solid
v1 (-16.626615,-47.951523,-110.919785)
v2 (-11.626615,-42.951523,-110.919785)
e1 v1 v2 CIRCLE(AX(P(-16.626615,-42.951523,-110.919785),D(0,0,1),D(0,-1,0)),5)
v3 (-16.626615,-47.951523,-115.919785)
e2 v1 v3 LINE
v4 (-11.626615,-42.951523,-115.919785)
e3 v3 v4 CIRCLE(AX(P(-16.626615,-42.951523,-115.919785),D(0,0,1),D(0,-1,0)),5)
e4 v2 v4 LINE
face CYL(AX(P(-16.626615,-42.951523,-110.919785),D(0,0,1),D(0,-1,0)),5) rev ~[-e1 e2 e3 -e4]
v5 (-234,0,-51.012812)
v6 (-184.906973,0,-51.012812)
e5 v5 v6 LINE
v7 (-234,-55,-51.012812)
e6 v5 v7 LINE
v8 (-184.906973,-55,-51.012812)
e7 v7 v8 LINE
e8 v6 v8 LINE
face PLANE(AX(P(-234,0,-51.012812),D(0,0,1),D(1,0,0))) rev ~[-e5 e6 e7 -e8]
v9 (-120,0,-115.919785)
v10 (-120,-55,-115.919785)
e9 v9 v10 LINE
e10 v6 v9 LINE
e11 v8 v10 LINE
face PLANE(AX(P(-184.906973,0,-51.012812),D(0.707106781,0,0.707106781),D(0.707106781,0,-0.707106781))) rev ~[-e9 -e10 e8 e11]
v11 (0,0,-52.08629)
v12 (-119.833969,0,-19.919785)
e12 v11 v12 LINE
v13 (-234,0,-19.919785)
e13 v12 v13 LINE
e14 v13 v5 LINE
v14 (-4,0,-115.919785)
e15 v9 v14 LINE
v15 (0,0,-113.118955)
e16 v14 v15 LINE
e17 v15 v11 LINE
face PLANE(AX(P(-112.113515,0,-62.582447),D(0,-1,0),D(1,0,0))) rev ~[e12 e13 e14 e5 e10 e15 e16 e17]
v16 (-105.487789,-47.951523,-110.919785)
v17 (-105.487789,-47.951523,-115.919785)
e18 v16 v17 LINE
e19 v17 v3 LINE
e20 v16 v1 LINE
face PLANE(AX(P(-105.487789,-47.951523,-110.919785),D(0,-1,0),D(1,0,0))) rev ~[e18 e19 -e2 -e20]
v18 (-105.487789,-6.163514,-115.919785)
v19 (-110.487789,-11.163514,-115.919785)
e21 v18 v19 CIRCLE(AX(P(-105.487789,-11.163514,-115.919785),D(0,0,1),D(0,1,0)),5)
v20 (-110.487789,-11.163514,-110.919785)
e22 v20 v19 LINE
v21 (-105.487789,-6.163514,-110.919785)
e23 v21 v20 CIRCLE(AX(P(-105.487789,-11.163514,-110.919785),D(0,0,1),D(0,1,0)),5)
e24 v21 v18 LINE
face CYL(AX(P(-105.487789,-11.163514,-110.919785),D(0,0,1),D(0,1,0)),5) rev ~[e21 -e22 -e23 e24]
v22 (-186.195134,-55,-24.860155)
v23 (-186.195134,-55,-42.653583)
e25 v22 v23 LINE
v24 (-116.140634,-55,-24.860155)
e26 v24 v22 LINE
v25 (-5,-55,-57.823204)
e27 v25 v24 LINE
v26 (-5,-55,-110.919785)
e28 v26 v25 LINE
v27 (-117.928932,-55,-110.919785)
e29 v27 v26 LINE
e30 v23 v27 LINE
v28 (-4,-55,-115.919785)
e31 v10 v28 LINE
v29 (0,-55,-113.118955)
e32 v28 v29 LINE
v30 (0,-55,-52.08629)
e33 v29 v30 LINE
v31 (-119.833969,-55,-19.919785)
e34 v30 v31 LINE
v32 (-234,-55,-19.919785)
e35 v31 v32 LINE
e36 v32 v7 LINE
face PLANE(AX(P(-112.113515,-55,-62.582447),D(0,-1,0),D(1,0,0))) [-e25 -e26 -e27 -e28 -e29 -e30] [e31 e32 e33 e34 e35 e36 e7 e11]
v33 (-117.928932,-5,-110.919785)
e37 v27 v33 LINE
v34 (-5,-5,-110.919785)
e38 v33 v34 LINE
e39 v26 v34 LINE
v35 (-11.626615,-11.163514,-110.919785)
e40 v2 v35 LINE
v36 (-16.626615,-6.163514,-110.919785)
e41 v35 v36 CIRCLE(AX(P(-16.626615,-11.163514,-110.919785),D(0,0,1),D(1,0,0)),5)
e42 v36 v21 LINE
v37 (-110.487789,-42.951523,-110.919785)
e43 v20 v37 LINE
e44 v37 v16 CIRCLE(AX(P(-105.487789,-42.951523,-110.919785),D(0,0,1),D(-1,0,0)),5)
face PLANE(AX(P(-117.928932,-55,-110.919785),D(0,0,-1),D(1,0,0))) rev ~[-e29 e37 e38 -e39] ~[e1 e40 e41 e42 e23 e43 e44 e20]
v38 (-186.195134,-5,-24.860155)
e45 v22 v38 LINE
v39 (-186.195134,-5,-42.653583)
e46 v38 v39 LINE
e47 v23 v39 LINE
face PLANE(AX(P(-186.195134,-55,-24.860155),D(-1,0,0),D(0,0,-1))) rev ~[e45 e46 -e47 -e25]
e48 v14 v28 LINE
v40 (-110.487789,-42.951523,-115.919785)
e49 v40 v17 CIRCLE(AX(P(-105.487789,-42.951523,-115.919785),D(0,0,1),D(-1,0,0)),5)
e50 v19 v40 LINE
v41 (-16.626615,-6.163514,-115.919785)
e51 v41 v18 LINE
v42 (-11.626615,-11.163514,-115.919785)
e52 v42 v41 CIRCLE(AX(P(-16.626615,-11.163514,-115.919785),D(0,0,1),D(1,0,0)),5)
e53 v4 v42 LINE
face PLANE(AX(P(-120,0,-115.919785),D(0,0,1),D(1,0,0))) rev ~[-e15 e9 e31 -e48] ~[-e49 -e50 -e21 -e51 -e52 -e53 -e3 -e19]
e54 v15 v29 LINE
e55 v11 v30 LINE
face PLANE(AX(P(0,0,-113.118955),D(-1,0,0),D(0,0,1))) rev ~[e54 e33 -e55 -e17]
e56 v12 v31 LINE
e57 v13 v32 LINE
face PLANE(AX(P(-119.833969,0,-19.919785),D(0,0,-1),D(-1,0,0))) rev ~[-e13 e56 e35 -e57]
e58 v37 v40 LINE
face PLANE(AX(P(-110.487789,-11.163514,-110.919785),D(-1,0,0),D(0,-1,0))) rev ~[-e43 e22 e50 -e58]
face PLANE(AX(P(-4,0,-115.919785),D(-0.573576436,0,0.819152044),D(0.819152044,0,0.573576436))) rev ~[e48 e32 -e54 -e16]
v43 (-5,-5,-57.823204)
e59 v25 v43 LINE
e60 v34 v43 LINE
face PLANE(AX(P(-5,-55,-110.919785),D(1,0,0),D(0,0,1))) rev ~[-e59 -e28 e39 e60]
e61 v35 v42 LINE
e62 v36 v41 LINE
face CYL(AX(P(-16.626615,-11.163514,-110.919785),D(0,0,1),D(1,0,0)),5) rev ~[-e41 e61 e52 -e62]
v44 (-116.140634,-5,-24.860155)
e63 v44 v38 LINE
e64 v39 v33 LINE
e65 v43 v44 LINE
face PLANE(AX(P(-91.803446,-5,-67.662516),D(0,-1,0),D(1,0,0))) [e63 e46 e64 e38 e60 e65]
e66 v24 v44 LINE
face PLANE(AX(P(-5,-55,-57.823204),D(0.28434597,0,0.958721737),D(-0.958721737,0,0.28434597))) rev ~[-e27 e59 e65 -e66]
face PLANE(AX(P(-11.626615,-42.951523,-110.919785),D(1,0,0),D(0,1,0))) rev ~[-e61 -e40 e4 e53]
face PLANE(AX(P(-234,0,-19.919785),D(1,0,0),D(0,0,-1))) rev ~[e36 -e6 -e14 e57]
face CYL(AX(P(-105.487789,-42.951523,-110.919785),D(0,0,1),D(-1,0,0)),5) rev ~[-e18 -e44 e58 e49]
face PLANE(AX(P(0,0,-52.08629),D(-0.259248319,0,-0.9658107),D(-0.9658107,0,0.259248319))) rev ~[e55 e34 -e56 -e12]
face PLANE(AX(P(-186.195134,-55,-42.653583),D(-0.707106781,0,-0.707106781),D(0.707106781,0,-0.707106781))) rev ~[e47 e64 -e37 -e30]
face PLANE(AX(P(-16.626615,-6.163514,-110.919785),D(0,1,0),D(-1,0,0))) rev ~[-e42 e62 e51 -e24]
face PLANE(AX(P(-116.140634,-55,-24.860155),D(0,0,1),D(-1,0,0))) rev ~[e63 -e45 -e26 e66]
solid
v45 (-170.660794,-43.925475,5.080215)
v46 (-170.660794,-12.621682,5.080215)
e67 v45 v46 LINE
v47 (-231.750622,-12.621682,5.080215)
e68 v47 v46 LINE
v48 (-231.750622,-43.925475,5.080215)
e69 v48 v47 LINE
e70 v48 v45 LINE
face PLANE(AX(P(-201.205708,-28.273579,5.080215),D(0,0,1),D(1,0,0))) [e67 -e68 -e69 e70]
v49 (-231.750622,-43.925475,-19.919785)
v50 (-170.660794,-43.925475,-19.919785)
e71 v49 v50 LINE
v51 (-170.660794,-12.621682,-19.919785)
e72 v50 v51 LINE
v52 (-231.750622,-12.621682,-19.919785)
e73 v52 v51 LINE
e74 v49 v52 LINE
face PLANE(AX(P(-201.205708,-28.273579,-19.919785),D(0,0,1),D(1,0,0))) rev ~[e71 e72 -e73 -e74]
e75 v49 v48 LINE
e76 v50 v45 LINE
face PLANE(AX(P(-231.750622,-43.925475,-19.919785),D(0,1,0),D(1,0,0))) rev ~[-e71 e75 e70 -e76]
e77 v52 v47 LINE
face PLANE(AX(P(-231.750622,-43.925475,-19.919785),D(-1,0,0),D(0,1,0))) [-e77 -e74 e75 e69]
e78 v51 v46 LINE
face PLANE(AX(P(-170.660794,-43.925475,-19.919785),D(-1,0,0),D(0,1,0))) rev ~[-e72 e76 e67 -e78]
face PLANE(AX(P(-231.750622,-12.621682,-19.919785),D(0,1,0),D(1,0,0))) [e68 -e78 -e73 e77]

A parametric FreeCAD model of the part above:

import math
import FreeCAD as App
import Part
import Sketcher
Q = App.Units.Quantity


def add_polygon(sketch, points):
    """Adds a closed chain of lines whose ends are joined by coincident constraints."""
    first, n = sketch.GeometryCount, len(points)
    for a, b in zip(points, points[1:] + points[:1]):
        sketch.addGeometry(Part.LineSegment(App.Vector(*a, 0), App.Vector(*b, 0)), False)
    for i in range(n):
        sketch.addConstraint(Sketcher.Constraint("Coincident", first + i, 2, first + (i + 1) % n, 1))

doc = App.newDocument("Part")
body = doc.addObject("PartDesign::Body", "Body")

# Sketch on XZ plane
sketch1 = body.newObject("Sketcher::SketchObject", "Sketch")
sketch1.AttachmentSupport = (doc.getObject("XZ_Plane"), [""])
sketch1.MapMode = "FlatFace"
add_polygon(sketch1, [(0, -113.118955), (0, -52.08629), (-119.833969, -19.919785), (-234, -19.919785), (-234, -51.012812), (-184.906973, -51.012812), (-120, -115.919785), (-4, -115.919785)])  # lines 0-7
sketch1.addConstraint([
    Sketcher.Constraint("Vertical", 0),
    Sketcher.Constraint("Horizontal", 2),
    Sketcher.Constraint("Vertical", 3),
    Sketcher.Constraint("Horizontal", 4),
    Sketcher.Constraint("Horizontal", 6),
    Sketcher.Constraint("PointOnObject", 0, 2, -2),
    Sketcher.Constraint("DistanceX", 6, 1, 6, 2, Q("116 mm")),
    Sketcher.Constraint("Angle", 5, Q("-45 deg")),
    Sketcher.Constraint("Angle", 7, Q("35 deg")),
    Sketcher.Constraint("DistanceX", 2, 2, -1, 1, Q("234 mm")),
    Sketcher.Constraint("DistanceX", 5, 2, -1, 1, Q("120 mm")),
    Sketcher.Constraint("DistanceY", 5, 2, 1, 2, Q("96 mm")),
    Sketcher.Constraint("DistanceX", 2, 2, 2, 1, Q("114.166031 mm")),
    Sketcher.Constraint("Distance", 1, Q("124.076042 mm")),
    Sketcher.Constraint("Distance", 5, Q("91.792322 mm")),
    Sketcher.Constraint("DistanceY", 0, 2, -1, 1, Q("52.08629 mm")),
])
pad1 = body.newObject("PartDesign::Pad", "Pad")
pad1.Profile = sketch1
pad1.Length = 55

# Sketch on XZ plane
sketch2 = body.newObject("Sketcher::SketchObject", "Sketch001")
sketch2.AttachmentSupport = (doc.getObject("XZ_Plane"), [""])
sketch2.MapMode = "FlatFace"
sketch2.AttachmentOffset = App.Placement(App.Vector(0, 0, 55), App.Rotation())
add_polygon(sketch2, [(-116.140634, -24.860155), (-186.195134, -24.860155), (-186.195134, -42.653583), (-117.928932, -110.919785), (-5, -110.919785), (-5, -57.823204)])  # lines 0-5
sketch2.addConstraint([
    Sketcher.Constraint("Horizontal", 0),
    Sketcher.Constraint("Vertical", 1),
    Sketcher.Constraint("Horizontal", 3),
    Sketcher.Constraint("Vertical", 4),
    Sketcher.Constraint("Angle", 2, Q("-45 deg")),
    Sketcher.Constraint("DistanceX", 3, 2, -1, 1, Q("5 mm")),
    Sketcher.Constraint("DistanceX", 0, 2, 0, 1, Q("70.0545 mm")),
    Sketcher.Constraint("DistanceY", 4, 1, 4, 2, Q("53.096581 mm")),
    Sketcher.Constraint("DistanceX", 1, 2, 2, 2, Q("68.266202 mm")),
    Sketcher.Constraint("Distance", 5, Q("115.925852 mm")),
    Sketcher.Constraint("DistanceX", 3, 1, 3, 2, Q("112.928932 mm")),
    Sketcher.Constraint("DistanceY", 0, 2, -1, 1, Q("24.860155 mm")),
])
pocket1 = body.newObject("PartDesign::Pocket", "Pocket")
pocket1.Profile = sketch2
pocket1.Type = "TwoLengths"
pocket1.Length = 50
pocket1.Length2 = 50

# Sketch on XY plane
sketch3 = body.newObject("Sketcher::SketchObject", "Sketch002")
sketch3.AttachmentSupport = (doc.getObject("XY_Plane"), [""])
sketch3.MapMode = "FlatFace"
sketch3.AttachmentOffset = App.Placement(App.Vector(0, 0, -110.919785), App.Rotation())
sketch3.addGeometry([
    Part.LineSegment(App.Vector(-16.626615, -6.163514, 0), App.Vector(-105.487789, -6.163514, 0)),  # 0
    Part.ArcOfCircle(Part.Circle(App.Vector(-105.487789, -11.163514, 0), App.Vector(0, 0, 1), 5), math.radians(90), math.radians(180)),  # 1
    Part.LineSegment(App.Vector(-110.487789, -11.163514, 0), App.Vector(-110.487789, -42.951523, 0)),  # 2
    Part.ArcOfCircle(Part.Circle(App.Vector(-105.487789, -42.951523, 0), App.Vector(0, 0, 1), 5), math.radians(180), math.radians(270)),  # 3
    Part.LineSegment(App.Vector(-105.487789, -47.951523, 0), App.Vector(-16.626615, -47.951523, 0)),  # 4
    Part.ArcOfCircle(Part.Circle(App.Vector(-16.626615, -42.951523, 0), App.Vector(0, 0, 1), 5), math.radians(-90), math.radians(0)),  # 5
    Part.LineSegment(App.Vector(-11.626615, -42.951523, 0), App.Vector(-11.626615, -11.163514, 0)),  # 6
    Part.ArcOfCircle(Part.Circle(App.Vector(-16.626615, -11.163514, 0), App.Vector(0, 0, 1), 5), math.radians(0), math.radians(90)),  # 7
], False)
sketch3.addConstraint([
    Sketcher.Constraint("Tangent", 0, 2, 1, 1),
    Sketcher.Constraint("Tangent", 1, 2, 2, 1),
    Sketcher.Constraint("Tangent", 2, 2, 3, 1),
    Sketcher.Constraint("Tangent", 3, 2, 4, 1),
    Sketcher.Constraint("Tangent", 4, 2, 5, 1),
    Sketcher.Constraint("Tangent", 5, 2, 6, 1),
    Sketcher.Constraint("Tangent", 6, 2, 7, 1),
    Sketcher.Constraint("Tangent", 7, 2, 0, 1),
    Sketcher.Constraint("Horizontal", 0),
    Sketcher.Constraint("Vertical", 2),
    Sketcher.Constraint("Horizontal", 4),
    Sketcher.Constraint("Vertical", 6),
    Sketcher.Constraint("Equal", 1, 3),
    Sketcher.Constraint("Equal", 3, 5),
    Sketcher.Constraint("Equal", 5, 7),
    Sketcher.Constraint("Radius", 1, Q("5 mm")),
    Sketcher.Constraint("DistanceY", 2, 2, 2, 1, Q("31.788009 mm")),
    Sketcher.Constraint("DistanceX", 0, 2, 0, 1, Q("88.861174 mm")),
    Sketcher.Constraint("DistanceX", 1, 3, -1, 1, Q("105.487789 mm")),
    Sketcher.Constraint("DistanceY", 1, 3, -1, 1, Q("11.163514 mm")),
])
pocket2 = body.newObject("PartDesign::Pocket", "Pocket001")
pocket2.Profile = sketch3
pocket2.Length = 25
body2 = doc.addObject("PartDesign::Body", "Body001")

# Sketch on XY plane
sketch4 = body2.newObject("Sketcher::SketchObject", "Sketch003")
sketch4.AttachmentSupport = (doc.getObject("XY_Plane001"), [""])
sketch4.MapMode = "FlatFace"
sketch4.AttachmentOffset = App.Placement(App.Vector(0, 0, -19.919785), App.Rotation())
add_polygon(sketch4, [(-231.750622, -12.621682), (-231.750622, -43.925475), (-170.660794, -43.925475), (-170.660794, -12.621682)])  # lines 0-3
sketch4.addConstraint([
    Sketcher.Constraint("Vertical", 0),
    Sketcher.Constraint("Horizontal", 1),
    Sketcher.Constraint("Vertical", 2),
    Sketcher.Constraint("Horizontal", 3),
    Sketcher.Constraint("DistanceX", 1, 1, 1, 2, Q("61.089829 mm")),
    Sketcher.Constraint("DistanceY", 0, 2, 0, 1, Q("31.303793 mm")),
    Sketcher.Constraint("DistanceX", 0, 2, -1, 1, Q("231.750622 mm")),
    Sketcher.Constraint("DistanceY", 0, 2, -1, 1, Q("43.925475 mm")),
])
pad2 = body2.newObject("PartDesign::Pad", "Pad001")
pad2.Profile = sketch4
pad2.Length = 25

doc.recompute()
